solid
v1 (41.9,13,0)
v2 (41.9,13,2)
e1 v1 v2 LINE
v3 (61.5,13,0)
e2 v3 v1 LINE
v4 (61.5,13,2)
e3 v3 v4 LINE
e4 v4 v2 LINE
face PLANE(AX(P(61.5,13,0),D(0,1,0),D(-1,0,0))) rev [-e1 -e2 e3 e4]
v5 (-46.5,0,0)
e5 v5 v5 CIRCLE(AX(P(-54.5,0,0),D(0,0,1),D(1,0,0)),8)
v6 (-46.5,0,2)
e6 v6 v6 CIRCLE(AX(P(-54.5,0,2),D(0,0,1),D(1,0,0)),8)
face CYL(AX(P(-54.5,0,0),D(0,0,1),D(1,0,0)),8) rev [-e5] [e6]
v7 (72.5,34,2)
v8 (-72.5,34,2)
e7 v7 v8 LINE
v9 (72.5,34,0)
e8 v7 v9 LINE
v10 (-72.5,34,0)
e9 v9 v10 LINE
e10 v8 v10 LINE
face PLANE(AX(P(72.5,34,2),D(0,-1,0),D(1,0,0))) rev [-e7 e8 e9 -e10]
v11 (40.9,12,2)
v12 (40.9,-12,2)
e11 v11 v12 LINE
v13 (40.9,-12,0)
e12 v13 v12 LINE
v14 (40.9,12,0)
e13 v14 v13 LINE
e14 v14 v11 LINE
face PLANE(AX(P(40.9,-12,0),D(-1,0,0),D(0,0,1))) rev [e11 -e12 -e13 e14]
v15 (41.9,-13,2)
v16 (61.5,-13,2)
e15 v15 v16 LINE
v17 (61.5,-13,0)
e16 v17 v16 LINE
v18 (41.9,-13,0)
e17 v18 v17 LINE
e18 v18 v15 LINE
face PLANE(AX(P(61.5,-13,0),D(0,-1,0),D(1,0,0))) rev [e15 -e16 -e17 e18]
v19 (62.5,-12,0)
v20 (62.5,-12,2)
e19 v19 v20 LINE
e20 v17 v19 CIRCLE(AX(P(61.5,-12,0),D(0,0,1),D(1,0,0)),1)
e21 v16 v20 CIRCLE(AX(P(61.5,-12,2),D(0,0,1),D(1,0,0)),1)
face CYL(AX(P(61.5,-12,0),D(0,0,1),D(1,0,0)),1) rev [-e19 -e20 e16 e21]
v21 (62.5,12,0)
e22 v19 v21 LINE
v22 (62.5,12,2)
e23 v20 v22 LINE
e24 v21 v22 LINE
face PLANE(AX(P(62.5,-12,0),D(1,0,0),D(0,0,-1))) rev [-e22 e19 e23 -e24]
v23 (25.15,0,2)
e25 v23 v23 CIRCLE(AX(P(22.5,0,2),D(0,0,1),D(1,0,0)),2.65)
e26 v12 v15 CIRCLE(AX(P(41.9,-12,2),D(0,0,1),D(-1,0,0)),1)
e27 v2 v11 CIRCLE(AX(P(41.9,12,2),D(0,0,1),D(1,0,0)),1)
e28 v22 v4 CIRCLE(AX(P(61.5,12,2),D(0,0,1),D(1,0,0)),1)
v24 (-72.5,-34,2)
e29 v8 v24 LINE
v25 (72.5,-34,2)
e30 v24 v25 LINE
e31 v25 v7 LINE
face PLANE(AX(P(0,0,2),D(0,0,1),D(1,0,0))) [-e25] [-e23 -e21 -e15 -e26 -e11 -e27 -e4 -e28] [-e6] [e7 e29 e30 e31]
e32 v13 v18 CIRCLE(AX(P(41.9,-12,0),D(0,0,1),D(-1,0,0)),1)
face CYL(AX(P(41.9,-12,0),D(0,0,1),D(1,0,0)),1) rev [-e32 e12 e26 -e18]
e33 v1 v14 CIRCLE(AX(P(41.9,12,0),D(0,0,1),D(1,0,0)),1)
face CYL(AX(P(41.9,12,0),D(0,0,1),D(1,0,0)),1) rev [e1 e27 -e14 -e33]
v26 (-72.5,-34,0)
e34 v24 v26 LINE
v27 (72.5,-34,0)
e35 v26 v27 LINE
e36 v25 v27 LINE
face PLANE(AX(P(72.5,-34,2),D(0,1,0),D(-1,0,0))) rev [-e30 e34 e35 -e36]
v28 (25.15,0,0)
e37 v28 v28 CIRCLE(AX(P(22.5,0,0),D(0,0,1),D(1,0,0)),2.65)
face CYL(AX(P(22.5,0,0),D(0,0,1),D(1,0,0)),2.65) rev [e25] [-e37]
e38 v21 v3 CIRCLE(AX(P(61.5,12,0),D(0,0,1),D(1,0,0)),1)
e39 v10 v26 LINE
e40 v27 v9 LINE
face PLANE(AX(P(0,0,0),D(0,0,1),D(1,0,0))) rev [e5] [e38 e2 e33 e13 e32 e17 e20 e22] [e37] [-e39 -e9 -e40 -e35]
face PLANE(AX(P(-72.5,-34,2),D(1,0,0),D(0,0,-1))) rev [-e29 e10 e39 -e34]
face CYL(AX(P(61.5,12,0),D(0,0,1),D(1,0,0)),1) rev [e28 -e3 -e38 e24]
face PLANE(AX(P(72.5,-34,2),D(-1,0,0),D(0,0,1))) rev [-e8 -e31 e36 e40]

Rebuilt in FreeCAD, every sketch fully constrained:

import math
import FreeCAD as App
import Part
import Sketcher
from FreeCAD import Vector
Q = App.Units.Quantity


def add_polygon(sketch, points):
    """Adds a closed chain of lines whose ends are joined by coincident constraints."""
    first, n = sketch.GeometryCount, len(points)
    for a, b in zip(points, points[1:] + points[:1]):
        sketch.addGeometry(Part.LineSegment(App.Vector(*a, 0), App.Vector(*b, 0)), False)
    for i in range(n):
        sketch.addConstraint(Sketcher.Constraint("Coincident", first + i, 2, first + (i + 1) % n, 1))

doc = App.newDocument("Part")
params = doc.addObject("Spreadsheet::Sheet", "Params")
for row, (alias, value) in enumerate([
    ("sketch1_width", "145 mm"),
    ("sketch1_height", "68 mm"),
    ("pad1_length", "2 mm"),
    ("sketch2_diameter", "16 mm"),
    ("sketch2_radius", "1 mm"),
    ("sketch2_diameter2", "5.3 mm"),
    ("sketch2_height", "24 mm"),
    ("sketch2_width", "19.6 mm"),
], start=1):
    params.set(f"A{row}", alias)
    params.set(f"B{row}", "=" + value)
    params.setAlias(f"B{row}", alias)

body = doc.addObject("PartDesign::Body", "Body")

sketch1 = doc.addObject("Sketcher::SketchObject", "Sketch")
body.addObject(sketch1)
sketch1.AttachmentSupport = (doc.XY_Plane, [""])
sketch1.MapMode = "FlatFace"
add_polygon(sketch1, [(-72, 34), (-72, -34), (72, -34), (72, 34)])
sketch1.addConstraint(Sketcher.Constraint("Vertical", 0))
sketch1.addConstraint(Sketcher.Constraint("Horizontal", 1))
sketch1.addConstraint(Sketcher.Constraint("Vertical", 2))
sketch1.addConstraint(Sketcher.Constraint("Horizontal", 3))
sketch1.addConstraint(Sketcher.Constraint("Symmetric", 0, 2, 2, 2, -1, 1))
sketch1.addConstraint(Sketcher.Constraint("DistanceX", 1, 1, 1, 2, Q("145 mm")))
sketch1.addConstraint(Sketcher.Constraint("DistanceY", 0, 2, 0, 1, Q("68 mm")))
sketch1.setExpression("Constraints[9]", "Params.sketch1_width")
sketch1.setExpression("Constraints[10]", "Params.sketch1_height")
pad1 = doc.addObject("PartDesign::Pad", "Pad")
body.addObject(pad1)
pad1.Profile = sketch1
pad1.setExpression("Length", "Params.pad1_length")

sketch2 = doc.addObject("Sketcher::SketchObject", "Sketch001")
body.addObject(sketch2)
sketch2.AttachmentSupport = (doc.XY_Plane, [""])
sketch2.MapMode = "FlatFace"
sketch2.AttachmentOffset = App.Placement(Vector(0, 0, 2), App.Rotation())
sketch2.addGeometry(Part.Circle(Vector(-54.5, 0, 0), Vector(0, 0, 1), 8), False)
sketch2.addGeometry(Part.Circle(Vector(22.5, 0, 0), Vector(0, 0, 1), 2.6), False)
sketch2.addGeometry(Part.LineSegment(Vector(41.9, -13, 0), Vector(61.5, -13, 0)), False)
sketch2.addGeometry(Part.ArcOfCircle(Part.Circle(Vector(61.5, -12, 0), Vector(0, 0, 1), 1), math.radians(-90), math.radians(0)), False)
sketch2.addGeometry(Part.LineSegment(Vector(62.5, -12, 0), Vector(62.5, 12, 0)), False)
sketch2.addGeometry(Part.ArcOfCircle(Part.Circle(Vector(61.5, 12, 0), Vector(0, 0, 1), 1), math.radians(0), math.radians(90)), False)
sketch2.addGeometry(Part.LineSegment(Vector(61.5, 13, 0), Vector(41.9, 13, 0)), False)
sketch2.addGeometry(Part.ArcOfCircle(Part.Circle(Vector(41.9, 12, 0), Vector(0, 0, 1), 1), math.radians(90), math.radians(180)), False)
sketch2.addGeometry(Part.LineSegment(Vector(40.9, 12, 0), Vector(40.9, -12, 0)), False)
sketch2.addGeometry(Part.ArcOfCircle(Part.Circle(Vector(41.9, -12, 0), Vector(0, 0, 1), 1), math.radians(-180), math.radians(-90)), False)
sketch2.addConstraint(Sketcher.Constraint("Tangent", 2, 2, 3, 1))
sketch2.addConstraint(Sketcher.Constraint("Tangent", 3, 2, 4, 1))
sketch2.addConstraint(Sketcher.Constraint("Tangent", 4, 2, 5, 1))
sketch2.addConstraint(Sketcher.Constraint("Tangent", 5, 2, 6, 1))
sketch2.addConstraint(Sketcher.Constraint("Tangent", 6, 2, 7, 1))
sketch2.addConstraint(Sketcher.Constraint("Tangent", 7, 2, 8, 1))
sketch2.addConstraint(Sketcher.Constraint("Tangent", 8, 2, 9, 1))
sketch2.addConstraint(Sketcher.Constraint("Tangent", 9, 2, 2, 1))
sketch2.addConstraint(Sketcher.Constraint("Horizontal", 2))
sketch2.addConstraint(Sketcher.Constraint("Vertical", 4))
sketch2.addConstraint(Sketcher.Constraint("Horizontal", 6))
sketch2.addConstraint(Sketcher.Constraint("Vertical", 8))
sketch2.addConstraint(Sketcher.Constraint("Equal", 3, 5))
sketch2.addConstraint(Sketcher.Constraint("Equal", 5, 7))
sketch2.addConstraint(Sketcher.Constraint("Equal", 7, 9))
sketch2.addConstraint(Sketcher.Constraint("PointOnObject", 0, 3, -1))
sketch2.addConstraint(Sketcher.Constraint("PointOnObject", 1, 3, -1))
sketch2.addConstraint(Sketcher.Constraint("Diameter", 0, Q("16 mm")))
sketch2.addConstraint(Sketcher.Constraint("Radius", 3, Q("1 mm")))
sketch2.addConstraint(Sketcher.Constraint("Diameter", 1, Q("5.3 mm")))
sketch2.addConstraint(Sketcher.Constraint("DistanceY", 4, 1, 4, 2, Q("24 mm")))
sketch2.addConstraint(Sketcher.Constraint("DistanceX", 2, 1, 2, 2, Q("19.6 mm")))
sketch2.addConstraint(Sketcher.Constraint("DistanceY", 3, 3, -1, 1, Q("12 mm")))
sketch2.addConstraint(Sketcher.Constraint("DistanceX", 0, 3, 1, 3, Q("77 mm")))
sketch2.addConstraint(Sketcher.Constraint("DistanceX", 1, 3, 3, 3, Q("39 mm")))
sketch2.addConstraint(Sketcher.Constraint("DistanceX", 0, 3, -1, 1, Q("54.5 mm")))
sketch2.setExpression("Constraints[17]", "Params.sketch2_diameter")
sketch2.setExpression("Constraints[18]", "Params.sketch2_radius")
sketch2.setExpression("Constraints[19]", "Params.sketch2_diameter2")
sketch2.setExpression("Constraints[20]", "Params.sketch2_height")
sketch2.setExpression("Constraints[21]", "Params.sketch2_width")
pocket1 = doc.addObject("PartDesign::Pocket", "Pocket")
body.addObject(pocket1)
pocket1.Profile = sketch2
pocket1.Type = "ThroughAll"

doc.recompute()
